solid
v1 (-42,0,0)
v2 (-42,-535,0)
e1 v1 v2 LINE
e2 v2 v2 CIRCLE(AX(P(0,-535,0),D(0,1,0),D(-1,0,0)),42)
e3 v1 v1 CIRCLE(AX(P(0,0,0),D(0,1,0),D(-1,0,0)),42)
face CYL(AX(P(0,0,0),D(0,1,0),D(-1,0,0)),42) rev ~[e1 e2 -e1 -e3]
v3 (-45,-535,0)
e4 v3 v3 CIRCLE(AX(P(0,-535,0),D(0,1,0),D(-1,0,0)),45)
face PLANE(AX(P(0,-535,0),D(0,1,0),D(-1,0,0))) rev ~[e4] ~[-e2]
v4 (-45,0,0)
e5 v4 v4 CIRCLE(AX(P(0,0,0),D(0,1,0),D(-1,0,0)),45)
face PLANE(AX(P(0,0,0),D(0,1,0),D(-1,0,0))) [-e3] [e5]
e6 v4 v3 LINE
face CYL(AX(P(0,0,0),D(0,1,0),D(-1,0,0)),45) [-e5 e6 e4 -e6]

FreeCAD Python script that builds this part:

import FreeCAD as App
import Part
import Sketcher

doc = App.newDocument("Part")
body = doc.addObject("PartDesign::Body", "Body")

sketch1 = body.newObject("Sketcher::SketchObject", "Sketch")
sketch1.AttachmentSupport = (doc.getObject("XZ_Plane"), [""])
sketch1.MapMode = "FlatFace"
sketch1.addGeometry(Part.Circle(App.Vector(0, 0, 0), App.Vector(0, 0, 1), 45), False)
sketch1.addGeometry(Part.Circle(App.Vector(0, 0, 0), App.Vector(0, 0, 1), 42), False)
sketch1.addConstraint(Sketcher.Constraint("Coincident", 0, 3, -1, 1))
sketch1.addConstraint(Sketcher.Constraint("Coincident", 1, 3, -1, 1))
sketch1.addConstraint(Sketcher.Constraint("Diameter", 0, 90.0))
sketch1.addConstraint(Sketcher.Constraint("Diameter", 1, 84.0))
pad1 = body.newObject("PartDesign::Pad", "Pad")
pad1.Profile = sketch1
pad1.Length = 535

doc.recompute()
